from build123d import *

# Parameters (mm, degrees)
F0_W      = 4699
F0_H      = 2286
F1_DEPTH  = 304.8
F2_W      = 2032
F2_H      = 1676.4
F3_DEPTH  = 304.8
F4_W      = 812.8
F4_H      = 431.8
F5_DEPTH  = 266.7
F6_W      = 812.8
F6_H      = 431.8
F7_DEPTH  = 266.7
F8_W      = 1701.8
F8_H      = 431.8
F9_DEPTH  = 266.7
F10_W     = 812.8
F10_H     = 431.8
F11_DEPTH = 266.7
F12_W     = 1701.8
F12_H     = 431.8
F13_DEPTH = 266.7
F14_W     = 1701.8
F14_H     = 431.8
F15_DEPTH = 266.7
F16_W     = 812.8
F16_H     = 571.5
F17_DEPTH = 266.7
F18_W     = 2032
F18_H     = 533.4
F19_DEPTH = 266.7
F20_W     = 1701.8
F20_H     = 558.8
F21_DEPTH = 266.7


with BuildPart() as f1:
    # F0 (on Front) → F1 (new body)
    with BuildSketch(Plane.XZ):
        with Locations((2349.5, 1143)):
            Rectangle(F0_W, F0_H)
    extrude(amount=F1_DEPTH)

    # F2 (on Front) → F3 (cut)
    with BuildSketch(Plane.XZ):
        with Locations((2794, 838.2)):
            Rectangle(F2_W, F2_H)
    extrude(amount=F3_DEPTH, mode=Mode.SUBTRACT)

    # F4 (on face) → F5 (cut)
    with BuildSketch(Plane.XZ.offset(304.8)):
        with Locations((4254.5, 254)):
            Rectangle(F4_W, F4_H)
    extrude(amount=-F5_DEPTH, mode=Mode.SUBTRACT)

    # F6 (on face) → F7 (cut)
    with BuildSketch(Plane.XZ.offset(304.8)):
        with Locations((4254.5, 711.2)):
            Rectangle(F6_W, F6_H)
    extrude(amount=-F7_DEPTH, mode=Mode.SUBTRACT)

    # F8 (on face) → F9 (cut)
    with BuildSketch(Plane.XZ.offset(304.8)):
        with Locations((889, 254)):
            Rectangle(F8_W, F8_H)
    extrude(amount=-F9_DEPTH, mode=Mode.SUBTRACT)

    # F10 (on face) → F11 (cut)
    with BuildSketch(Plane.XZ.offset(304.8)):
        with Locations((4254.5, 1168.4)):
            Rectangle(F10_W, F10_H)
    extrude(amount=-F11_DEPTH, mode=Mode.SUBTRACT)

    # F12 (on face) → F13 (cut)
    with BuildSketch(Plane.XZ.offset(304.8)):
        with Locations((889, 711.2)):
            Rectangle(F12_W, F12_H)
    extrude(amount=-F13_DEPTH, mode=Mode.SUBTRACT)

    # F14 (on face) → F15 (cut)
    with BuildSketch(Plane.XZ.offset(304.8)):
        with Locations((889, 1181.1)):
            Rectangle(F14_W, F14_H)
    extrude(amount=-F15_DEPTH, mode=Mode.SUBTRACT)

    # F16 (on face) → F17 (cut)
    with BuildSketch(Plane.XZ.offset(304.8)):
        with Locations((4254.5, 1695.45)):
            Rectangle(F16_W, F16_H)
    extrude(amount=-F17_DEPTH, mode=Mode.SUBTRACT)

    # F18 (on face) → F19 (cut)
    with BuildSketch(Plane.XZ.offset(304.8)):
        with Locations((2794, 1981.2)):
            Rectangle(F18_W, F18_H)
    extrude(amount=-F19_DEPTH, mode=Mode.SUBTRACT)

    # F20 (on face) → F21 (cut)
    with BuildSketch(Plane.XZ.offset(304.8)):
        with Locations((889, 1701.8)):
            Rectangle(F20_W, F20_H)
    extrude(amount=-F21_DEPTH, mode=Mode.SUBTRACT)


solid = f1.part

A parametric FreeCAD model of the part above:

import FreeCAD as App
import Part
import Sketcher

V = App.Vector
Q = App.Units.Quantity

doc = App.newDocument("Part")
params = doc.addObject("Spreadsheet::Sheet", "Params")
for row, (alias, value) in enumerate([
    ("sketch1_width", "185 in"),
    ("sketch1_height", "90 in"),
    ("pad1_length", "12 in"),
    ("sketch2_width", "80 in"),
    ("sketch2_height", "66 in"),
    ("pocket1_length", "12 in"),
    ("sketch3_width", "32 in"),
    ("sketch3_height", "17 in"),
    ("pocket2_length", "10.5 in"),
    ("sketch4_width", "32 in"),
    ("sketch4_height", "17 in"),
    ("pocket3_length", "10.5 in"),
    ("sketch5_width", "67 in"),
    ("sketch5_height", "17 in"),
    ("pocket4_length", "10.5 in"),
    ("sketch6_width", "32 in"),
    ("sketch6_height", "17 in"),
    ("pocket5_length", "10.5 in"),
    ("sketch7_width", "67 in"),
    ("sketch7_height", "17 in"),
    ("pocket6_length", "10.5 in"),
    ("sketch8_width", "67 in"),
    ("sketch8_height", "17 in"),
    ("pocket7_length", "10.5 in"),
    ("sketch9_width", "32 in"),
    ("sketch9_height", "22.5 in"),
    ("pocket8_length", "10.5 in"),
    ("sketch10_width", "80 in"),
    ("sketch10_height", "21 in"),
    ("pocket9_length", "10.5 in"),
    ("sketch11_width", "67 in"),
    ("sketch11_height", "22 in"),
    ("pocket10_length", "10.5 in"),
], start=1):
    params.set(f"A{row}", alias)
    params.set(f"B{row}", "=" + value)
    params.setAlias(f"B{row}", alias)

body = doc.addObject("PartDesign::Body", "Body")

# Sketch on XZ plane
sketch1 = body.newObject("Sketcher::SketchObject", "Sketch")
sketch1.AttachmentSupport = (doc.getObject("XZ_Plane"), [""])
sketch1.MapMode = "FlatFace"
sketch1.addGeometry([
    Part.LineSegment(V(0, 2286, 0), V(0, 0, 0)),
    Part.LineSegment(V(0, 0, 0), V(4699, 0, 0)),
    Part.LineSegment(V(4699, 0, 0), V(4699, 2286, 0)),
    Part.LineSegment(V(4699, 2286, 0), V(0, 2286, 0)),
], False)
sketch1.addConstraint([
    Sketcher.Constraint("Coincident", 0, 2, 1, 1),
    Sketcher.Constraint("Coincident", 1, 2, 2, 1),
    Sketcher.Constraint("Coincident", 2, 2, 3, 1),
    Sketcher.Constraint("Coincident", 3, 2, 0, 1),
    Sketcher.Constraint("Vertical", 0),
    Sketcher.Constraint("Horizontal", 1),
    Sketcher.Constraint("Vertical", 2),
    Sketcher.Constraint("Horizontal", 3),
    Sketcher.Constraint("Coincident", 0, 2, -1, 1),
    Sketcher.Constraint("DistanceX", 1, 1, 1, 2, Q("185 in")),
    Sketcher.Constraint("DistanceY", 0, 2, 0, 1, Q("90 in")),
])
sketch1.setExpression("Constraints[9]", "Params.sketch1_width")
sketch1.setExpression("Constraints[10]", "Params.sketch1_height")
pad1 = body.newObject("PartDesign::Pad", "Pad")
pad1.Profile = sketch1
pad1.setExpression("Length", "Params.pad1_length")

# Sketch on XZ plane
sketch2 = body.newObject("Sketcher::SketchObject", "Sketch001")
sketch2.AttachmentSupport = (doc.getObject("XZ_Plane"), [""])
sketch2.MapMode = "FlatFace"
sketch2.addGeometry([
    Part.LineSegment(V(1778, 1676.4, 0), V(1778, 0, 0)),
    Part.LineSegment(V(1778, 0, 0), V(3810, 0, 0)),
    Part.LineSegment(V(3810, 0, 0), V(3810, 1676.4, 0)),
    Part.LineSegment(V(3810, 1676.4, 0), V(1778, 1676.4, 0)),
], False)
sketch2.addConstraint([
    Sketcher.Constraint("Coincident", 0, 2, 1, 1),
    Sketcher.Constraint("Coincident", 1, 2, 2, 1),
    Sketcher.Constraint("Coincident", 2, 2, 3, 1),
    Sketcher.Constraint("Coincident", 3, 2, 0, 1),
    Sketcher.Constraint("Vertical", 0),
    Sketcher.Constraint("Horizontal", 1),
    Sketcher.Constraint("Vertical", 2),
    Sketcher.Constraint("Horizontal", 3),
    Sketcher.Constraint("PointOnObject", 0, 2, -1),
    Sketcher.Constraint("DistanceX", 1, 1, 1, 2, Q("80 in")),
    Sketcher.Constraint("DistanceY", 0, 2, 0, 1, Q("66 in")),
    Sketcher.Constraint("DistanceX", -1, 1, 0, 2, Q("70 in")),
])
sketch2.setExpression("Constraints[9]", "Params.sketch2_width")
sketch2.setExpression("Constraints[10]", "Params.sketch2_height")
pocket1 = body.newObject("PartDesign::Pocket", "Pocket")
pocket1.Profile = sketch2
pocket1.setExpression("Length", "Params.pocket1_length")
pocket1.Reversed = True

# Sketch on XZ plane
sketch3 = body.newObject("Sketcher::SketchObject", "Sketch002")
sketch3.AttachmentSupport = (doc.getObject("XZ_Plane"), [""])
sketch3.MapMode = "FlatFace"
sketch3.AttachmentOffset = App.Placement(V(0, 0, 12 * 25.4), App.Rotation())
sketch3.addGeometry([
    Part.LineSegment(V(3848.1, 469.9, 0), V(3848.1, 38.1, 0)),
    Part.LineSegment(V(3848.1, 38.1, 0), V(4660.9, 38.1, 0)),
    Part.LineSegment(V(4660.9, 38.1, 0), V(4660.9, 469.9, 0)),
    Part.LineSegment(V(4660.9, 469.9, 0), V(3848.1, 469.9, 0)),
], False)
sketch3.addConstraint([
    Sketcher.Constraint("Coincident", 0, 2, 1, 1),
    Sketcher.Constraint("Coincident", 1, 2, 2, 1),
    Sketcher.Constraint("Coincident", 2, 2, 3, 1),
    Sketcher.Constraint("Coincident", 3, 2, 0, 1),
    Sketcher.Constraint("Vertical", 0),
    Sketcher.Constraint("Horizontal", 1),
    Sketcher.Constraint("Vertical", 2),
    Sketcher.Constraint("Horizontal", 3),
    Sketcher.Constraint("DistanceX", 1, 1, 1, 2, Q("32 in")),
    Sketcher.Constraint("DistanceY", 0, 2, 0, 1, Q("17 in")),
    Sketcher.Constraint("DistanceX", -1, 1, 0, 2, Q("151.5 in")),
    Sketcher.Constraint("DistanceY", -1, 1, 0, 2, Q("1.5 in")),
])
sketch3.setExpression("Constraints[8]", "Params.sketch3_width")
sketch3.setExpression("Constraints[9]", "Params.sketch3_height")
pocket2 = body.newObject("PartDesign::Pocket", "Pocket001")
pocket2.Profile = sketch3
pocket2.setExpression("Length", "Params.pocket2_length")

# Sketch on XZ plane
sketch4 = body.newObject("Sketcher::SketchObject", "Sketch003")
sketch4.AttachmentSupport = (doc.getObject("XZ_Plane"), [""])
sketch4.MapMode = "FlatFace"
sketch4.AttachmentOffset = App.Placement(V(0, 0, 12 * 25.4), App.Rotation())
sketch4.addGeometry([
    Part.LineSegment(V(3848.1, 927.1, 0), V(3848.1, 495.3, 0)),
    Part.LineSegment(V(3848.1, 495.3, 0), V(4660.9, 495.3, 0)),
    Part.LineSegment(V(4660.9, 495.3, 0), V(4660.9, 927.1, 0)),
    Part.LineSegment(V(4660.9, 927.1, 0), V(3848.1, 927.1, 0)),
], False)
sketch4.addConstraint([
    Sketcher.Constraint("Coincident", 0, 2, 1, 1),
    Sketcher.Constraint("Coincident", 1, 2, 2, 1),
    Sketcher.Constraint("Coincident", 2, 2, 3, 1),
    Sketcher.Constraint("Coincident", 3, 2, 0, 1),
    Sketcher.Constraint("Vertical", 0),
    Sketcher.Constraint("Horizontal", 1),
    Sketcher.Constraint("Vertical", 2),
    Sketcher.Constraint("Horizontal", 3),
    Sketcher.Constraint("DistanceX", 1, 1, 1, 2, Q("32 in")),
    Sketcher.Constraint("DistanceY", 0, 2, 0, 1, Q("17 in")),
    Sketcher.Constraint("DistanceX", -1, 1, 0, 2, Q("151.5 in")),
    Sketcher.Constraint("DistanceY", -1, 1, 0, 2, Q("19.5 in")),
])
sketch4.setExpression("Constraints[8]", "Params.sketch4_width")
sketch4.setExpression("Constraints[9]", "Params.sketch4_height")
pocket3 = body.newObject("PartDesign::Pocket", "Pocket002")
pocket3.Profile = sketch4
pocket3.setExpression("Length", "Params.pocket3_length")

# Sketch on XZ plane
sketch5 = body.newObject("Sketcher::SketchObject", "Sketch004")
sketch5.AttachmentSupport = (doc.getObject("XZ_Plane"), [""])
sketch5.MapMode = "FlatFace"
sketch5.AttachmentOffset = App.Placement(V(0, 0, 12 * 25.4), App.Rotation())
sketch5.addGeometry([
    Part.LineSegment(V(38.1, 469.9, 0), V(38.1, 38.1, 0)),
    Part.LineSegment(V(38.1, 38.1, 0), V(1739.9, 38.1, 0)),
    Part.LineSegment(V(1739.9, 38.1, 0), V(1739.9, 469.9, 0)),
    Part.LineSegment(V(1739.9, 469.9, 0), V(38.1, 469.9, 0)),
], False)
sketch5.addConstraint([
    Sketcher.Constraint("Coincident", 0, 2, 1, 1),
    Sketcher.Constraint("Coincident", 1, 2, 2, 1),
    Sketcher.Constraint("Coincident", 2, 2, 3, 1),
    Sketcher.Constraint("Coincident", 3, 2, 0, 1),
    Sketcher.Constraint("Vertical", 0),
    Sketcher.Constraint("Horizontal", 1),
    Sketcher.Constraint("Vertical", 2),
    Sketcher.Constraint("Horizontal", 3),
    Sketcher.Constraint("DistanceX", 1, 1, 1, 2, Q("67 in")),
    Sketcher.Constraint("DistanceY", 0, 2, 0, 1, Q("17 in")),
    Sketcher.Constraint("DistanceX", -1, 1, 0, 2, Q("1.5 in")),
    Sketcher.Constraint("DistanceY", -1, 1, 0, 2, Q("1.5 in")),
])
sketch5.setExpression("Constraints[8]", "Params.sketch5_width")
sketch5.setExpression("Constraints[9]", "Params.sketch5_height")
pocket4 = body.newObject("PartDesign::Pocket", "Pocket003")
pocket4.Profile = sketch5
pocket4.setExpression("Length", "Params.pocket4_length")

# Sketch on XZ plane
sketch6 = body.newObject("Sketcher::SketchObject", "Sketch005")
sketch6.AttachmentSupport = (doc.getObject("XZ_Plane"), [""])
sketch6.MapMode = "FlatFace"
sketch6.AttachmentOffset = App.Placement(V(0, 0, 12 * 25.4), App.Rotation())
sketch6.addGeometry([
    Part.LineSegment(V(3848.1, 1384.3, 0), V(3848.1, 952.5, 0)),
    Part.LineSegment(V(3848.1, 952.5, 0), V(4660.9, 952.5, 0)),
    Part.LineSegment(V(4660.9, 952.5, 0), V(4660.9, 1384.3, 0)),
    Part.LineSegment(V(4660.9, 1384.3, 0), V(3848.1, 1384.3, 0)),
], False)
sketch6.addConstraint([
    Sketcher.Constraint("Coincident", 0, 2, 1, 1),
    Sketcher.Constraint("Coincident", 1, 2, 2, 1),
    Sketcher.Constraint("Coincident", 2, 2, 3, 1),
    Sketcher.Constraint("Coincident", 3, 2, 0, 1),
    Sketcher.Constraint("Vertical", 0),
    Sketcher.Constraint("Horizontal", 1),
    Sketcher.Constraint("Vertical", 2),
    Sketcher.Constraint("Horizontal", 3),
    Sketcher.Constraint("DistanceX", 1, 1, 1, 2, Q("32 in")),
    Sketcher.Constraint("DistanceY", 0, 2, 0, 1, Q("17 in")),
    Sketcher.Constraint("DistanceX", -1, 1, 0, 2, Q("151.5 in")),
    Sketcher.Constraint("DistanceY", -1, 1, 0, 2, Q("37.5 in")),
])
sketch6.setExpression("Constraints[8]", "Params.sketch6_width")
sketch6.setExpression("Constraints[9]", "Params.sketch6_height")
pocket5 = body.newObject("PartDesign::Pocket", "Pocket004")
pocket5.Profile = sketch6
pocket5.setExpression("Length", "Params.pocket5_length")

# Sketch on XZ plane
sketch7 = body.newObject("Sketcher::SketchObject", "Sketch006")
sketch7.AttachmentSupport = (doc.getObject("XZ_Plane"), [""])
sketch7.MapMode = "FlatFace"
sketch7.AttachmentOffset = App.Placement(V(0, 0, 12 * 25.4), App.Rotation())
sketch7.addGeometry([
    Part.LineSegment(V(38.1, 927.1, 0), V(38.1, 495.3, 0)),
    Part.LineSegment(V(38.1, 495.3, 0), V(1739.9, 495.3, 0)),
    Part.LineSegment(V(1739.9, 495.3, 0), V(1739.9, 927.1, 0)),
    Part.LineSegment(V(1739.9, 927.1, 0), V(38.1, 927.1, 0)),
], False)
sketch7.addConstraint([
    Sketcher.Constraint("Coincident", 0, 2, 1, 1),
    Sketcher.Constraint("Coincident", 1, 2, 2, 1),
    Sketcher.Constraint("Coincident", 2, 2, 3, 1),
    Sketcher.Constraint("Coincident", 3, 2, 0, 1),
    Sketcher.Constraint("Vertical", 0),
    Sketcher.Constraint("Horizontal", 1),
    Sketcher.Constraint("Vertical", 2),
    Sketcher.Constraint("Horizontal", 3),
    Sketcher.Constraint("DistanceX", 1, 1, 1, 2, Q("67 in")),
    Sketcher.Constraint("DistanceY", 0, 2, 0, 1, Q("17 in")),
    Sketcher.Constraint("DistanceX", -1, 1, 0, 2, Q("1.5 in")),
    Sketcher.Constraint("DistanceY", -1, 1, 0, 2, Q("19.5 in")),
])
sketch7.setExpression("Constraints[8]", "Params.sketch7_width")
sketch7.setExpression("Constraints[9]", "Params.sketch7_height")
pocket6 = body.newObject("PartDesign::Pocket", "Pocket005")
pocket6.Profile = sketch7
pocket6.setExpression("Length", "Params.pocket6_length")

# Sketch on XZ plane
sketch8 = body.newObject("Sketcher::SketchObject", "Sketch007")
sketch8.AttachmentSupport = (doc.getObject("XZ_Plane"), [""])
sketch8.MapMode = "FlatFace"
sketch8.AttachmentOffset = App.Placement(V(0, 0, 12 * 25.4), App.Rotation())
sketch8.addGeometry([
    Part.LineSegment(V(38.1, 1397, 0), V(38.1, 965.2, 0)),
    Part.LineSegment(V(38.1, 965.2, 0), V(1739.9, 965.2, 0)),
    Part.LineSegment(V(1739.9, 965.2, 0), V(1739.9, 1397, 0)),
    Part.LineSegment(V(1739.9, 1397, 0), V(38.1, 1397, 0)),
], False)
sketch8.addConstraint([
    Sketcher.Constraint("Coincident", 0, 2, 1, 1),
    Sketcher.Constraint("Coincident", 1, 2, 2, 1),
    Sketcher.Constraint("Coincident", 2, 2, 3, 1),
    Sketcher.Constraint("Coincident", 3, 2, 0, 1),
    Sketcher.Constraint("Vertical", 0),
    Sketcher.Constraint("Horizontal", 1),
    Sketcher.Constraint("Vertical", 2),
    Sketcher.Constraint("Horizontal", 3),
    Sketcher.Constraint("DistanceX", 1, 1, 1, 2, Q("67 in")),
    Sketcher.Constraint("DistanceY", 0, 2, 0, 1, Q("17 in")),
    Sketcher.Constraint("DistanceY", -1, 1, 0, 2, Q("38 in")),
    Sketcher.Constraint("DistanceX", -1, 1, 0, 2, Q("1.5 in")),
])
sketch8.setExpression("Constraints[8]", "Params.sketch8_width")
sketch8.setExpression("Constraints[9]", "Params.sketch8_height")
pocket7 = body.newObject("PartDesign::Pocket", "Pocket006")
pocket7.Profile = sketch8
pocket7.setExpression("Length", "Params.pocket7_length")

# Sketch on XZ plane
sketch9 = body.newObject("Sketcher::SketchObject", "Sketch008")
sketch9.AttachmentSupport = (doc.getObject("XZ_Plane"), [""])
sketch9.MapMode = "FlatFace"
sketch9.AttachmentOffset = App.Placement(V(0, 0, 12 * 25.4), App.Rotation())
sketch9.addGeometry([
    Part.LineSegment(V(3848.1, 1981.2, 0), V(3848.1, 1409.7, 0)),
    Part.LineSegment(V(3848.1, 1409.7, 0), V(4660.9, 1409.7, 0)),
    Part.LineSegment(V(4660.9, 1409.7, 0), V(4660.9, 1981.2, 0)),
    Part.LineSegment(V(4660.9, 1981.2, 0), V(3848.1, 1981.2, 0)),
], False)
sketch9.addConstraint([
    Sketcher.Constraint("Coincident", 0, 2, 1, 1),
    Sketcher.Constraint("Coincident", 1, 2, 2, 1),
    Sketcher.Constraint("Coincident", 2, 2, 3, 1),
    Sketcher.Constraint("Coincident", 3, 2, 0, 1),
    Sketcher.Constraint("Vertical", 0),
    Sketcher.Constraint("Horizontal", 1),
    Sketcher.Constraint("Vertical", 2),
    Sketcher.Constraint("Horizontal", 3),
    Sketcher.Constraint("DistanceX", 1, 1, 1, 2, Q("32 in")),
    Sketcher.Constraint("DistanceY", 0, 2, 0, 1, Q("22.5 in")),
    Sketcher.Constraint("DistanceY", -1, 1, 2, 2, Q("78 in")),
    Sketcher.Constraint("DistanceX", -1, 1, 0, 2, Q("151.5 in")),
])
sketch9.setExpression("Constraints[8]", "Params.sketch9_width")
sketch9.setExpression("Constraints[9]", "Params.sketch9_height")
pocket8 = body.newObject("PartDesign::Pocket", "Pocket007")
pocket8.Profile = sketch9
pocket8.setExpression("Length", "Params.pocket8_length")

# Sketch on XZ plane
sketch10 = body.newObject("Sketcher::SketchObject", "Sketch009")
sketch10.AttachmentSupport = (doc.getObject("XZ_Plane"), [""])
sketch10.MapMode = "FlatFace"
sketch10.AttachmentOffset = App.Placement(V(0, 0, 12 * 25.4), App.Rotation())
sketch10.addGeometry([
    Part.LineSegment(V(1778, 2247.9, 0), V(1778, 1714.5, 0)),
    Part.LineSegment(V(1778, 1714.5, 0), V(3810, 1714.5, 0)),
    Part.LineSegment(V(3810, 1714.5, 0), V(3810, 2247.9, 0)),
    Part.LineSegment(V(3810, 2247.9, 0), V(1778, 2247.9, 0)),
], False)
sketch10.addConstraint([
    Sketcher.Constraint("Coincident", 0, 2, 1, 1),
    Sketcher.Constraint("Coincident", 1, 2, 2, 1),
    Sketcher.Constraint("Coincident", 2, 2, 3, 1),
    Sketcher.Constraint("Coincident", 3, 2, 0, 1),
    Sketcher.Constraint("Vertical", 0),
    Sketcher.Constraint("Horizontal", 1),
    Sketcher.Constraint("Vertical", 2),
    Sketcher.Constraint("Horizontal", 3),
    Sketcher.Constraint("DistanceX", 1, 1, 1, 2, Q("80 in")),
    Sketcher.Constraint("DistanceY", 0, 2, 0, 1, Q("21 in")),
    Sketcher.Constraint("DistanceX", -1, 1, 0, 2, Q("70 in")),
    Sketcher.Constraint("DistanceY", -1, 1, 0, 2, Q("67.5 in")),
])
sketch10.setExpression("Constraints[8]", "Params.sketch10_width")
sketch10.setExpression("Constraints[9]", "Params.sketch10_height")
pocket9 = body.newObject("PartDesign::Pocket", "Pocket008")
pocket9.Profile = sketch10
pocket9.setExpression("Length", "Params.pocket9_length")

# Sketch on XZ plane
sketch11 = body.newObject("Sketcher::SketchObject", "Sketch010")
sketch11.AttachmentSupport = (doc.getObject("XZ_Plane"), [""])
sketch11.MapMode = "FlatFace"
sketch11.AttachmentOffset = App.Placement(V(0, 0, 12 * 25.4), App.Rotation())
sketch11.addGeometry([
    Part.LineSegment(V(38.1, 1981.2, 0), V(38.1, 1422.4, 0)),
    Part.LineSegment(V(38.1, 1422.4, 0), V(1739.9, 1422.4, 0)),
    Part.LineSegment(V(1739.9, 1422.4, 0), V(1739.9, 1981.2, 0)),
    Part.LineSegment(V(1739.9, 1981.2, 0), V(38.1, 1981.2, 0)),
], False)
sketch11.addConstraint([
    Sketcher.Constraint("Coincident", 0, 2, 1, 1),
    Sketcher.Constraint("Coincident", 1, 2, 2, 1),
    Sketcher.Constraint("Coincident", 2, 2, 3, 1),
    Sketcher.Constraint("Coincident", 3, 2, 0, 1),
    Sketcher.Constraint("Vertical", 0),
    Sketcher.Constraint("Horizontal", 1),
    Sketcher.Constraint("Vertical", 2),
    Sketcher.Constraint("Horizontal", 3),
    Sketcher.Constraint("DistanceX", 1, 1, 1, 2, Q("67 in")),
    Sketcher.Constraint("DistanceY", 0, 2, 0, 1, Q("22 in")),
    Sketcher.Constraint("DistanceY", -1, 1, 0, 2, Q("56 in")),
    Sketcher.Constraint("DistanceX", -1, 1, 0, 2, Q("1.5 in")),
])
sketch11.setExpression("Constraints[8]", "Params.sketch11_width")
sketch11.setExpression("Constraints[9]", "Params.sketch11_height")
pocket10 = body.newObject("PartDesign::Pocket", "Pocket009")
pocket10.Profile = sketch11
pocket10.setExpression("Length", "Params.pocket10_length")

doc.recompute()
